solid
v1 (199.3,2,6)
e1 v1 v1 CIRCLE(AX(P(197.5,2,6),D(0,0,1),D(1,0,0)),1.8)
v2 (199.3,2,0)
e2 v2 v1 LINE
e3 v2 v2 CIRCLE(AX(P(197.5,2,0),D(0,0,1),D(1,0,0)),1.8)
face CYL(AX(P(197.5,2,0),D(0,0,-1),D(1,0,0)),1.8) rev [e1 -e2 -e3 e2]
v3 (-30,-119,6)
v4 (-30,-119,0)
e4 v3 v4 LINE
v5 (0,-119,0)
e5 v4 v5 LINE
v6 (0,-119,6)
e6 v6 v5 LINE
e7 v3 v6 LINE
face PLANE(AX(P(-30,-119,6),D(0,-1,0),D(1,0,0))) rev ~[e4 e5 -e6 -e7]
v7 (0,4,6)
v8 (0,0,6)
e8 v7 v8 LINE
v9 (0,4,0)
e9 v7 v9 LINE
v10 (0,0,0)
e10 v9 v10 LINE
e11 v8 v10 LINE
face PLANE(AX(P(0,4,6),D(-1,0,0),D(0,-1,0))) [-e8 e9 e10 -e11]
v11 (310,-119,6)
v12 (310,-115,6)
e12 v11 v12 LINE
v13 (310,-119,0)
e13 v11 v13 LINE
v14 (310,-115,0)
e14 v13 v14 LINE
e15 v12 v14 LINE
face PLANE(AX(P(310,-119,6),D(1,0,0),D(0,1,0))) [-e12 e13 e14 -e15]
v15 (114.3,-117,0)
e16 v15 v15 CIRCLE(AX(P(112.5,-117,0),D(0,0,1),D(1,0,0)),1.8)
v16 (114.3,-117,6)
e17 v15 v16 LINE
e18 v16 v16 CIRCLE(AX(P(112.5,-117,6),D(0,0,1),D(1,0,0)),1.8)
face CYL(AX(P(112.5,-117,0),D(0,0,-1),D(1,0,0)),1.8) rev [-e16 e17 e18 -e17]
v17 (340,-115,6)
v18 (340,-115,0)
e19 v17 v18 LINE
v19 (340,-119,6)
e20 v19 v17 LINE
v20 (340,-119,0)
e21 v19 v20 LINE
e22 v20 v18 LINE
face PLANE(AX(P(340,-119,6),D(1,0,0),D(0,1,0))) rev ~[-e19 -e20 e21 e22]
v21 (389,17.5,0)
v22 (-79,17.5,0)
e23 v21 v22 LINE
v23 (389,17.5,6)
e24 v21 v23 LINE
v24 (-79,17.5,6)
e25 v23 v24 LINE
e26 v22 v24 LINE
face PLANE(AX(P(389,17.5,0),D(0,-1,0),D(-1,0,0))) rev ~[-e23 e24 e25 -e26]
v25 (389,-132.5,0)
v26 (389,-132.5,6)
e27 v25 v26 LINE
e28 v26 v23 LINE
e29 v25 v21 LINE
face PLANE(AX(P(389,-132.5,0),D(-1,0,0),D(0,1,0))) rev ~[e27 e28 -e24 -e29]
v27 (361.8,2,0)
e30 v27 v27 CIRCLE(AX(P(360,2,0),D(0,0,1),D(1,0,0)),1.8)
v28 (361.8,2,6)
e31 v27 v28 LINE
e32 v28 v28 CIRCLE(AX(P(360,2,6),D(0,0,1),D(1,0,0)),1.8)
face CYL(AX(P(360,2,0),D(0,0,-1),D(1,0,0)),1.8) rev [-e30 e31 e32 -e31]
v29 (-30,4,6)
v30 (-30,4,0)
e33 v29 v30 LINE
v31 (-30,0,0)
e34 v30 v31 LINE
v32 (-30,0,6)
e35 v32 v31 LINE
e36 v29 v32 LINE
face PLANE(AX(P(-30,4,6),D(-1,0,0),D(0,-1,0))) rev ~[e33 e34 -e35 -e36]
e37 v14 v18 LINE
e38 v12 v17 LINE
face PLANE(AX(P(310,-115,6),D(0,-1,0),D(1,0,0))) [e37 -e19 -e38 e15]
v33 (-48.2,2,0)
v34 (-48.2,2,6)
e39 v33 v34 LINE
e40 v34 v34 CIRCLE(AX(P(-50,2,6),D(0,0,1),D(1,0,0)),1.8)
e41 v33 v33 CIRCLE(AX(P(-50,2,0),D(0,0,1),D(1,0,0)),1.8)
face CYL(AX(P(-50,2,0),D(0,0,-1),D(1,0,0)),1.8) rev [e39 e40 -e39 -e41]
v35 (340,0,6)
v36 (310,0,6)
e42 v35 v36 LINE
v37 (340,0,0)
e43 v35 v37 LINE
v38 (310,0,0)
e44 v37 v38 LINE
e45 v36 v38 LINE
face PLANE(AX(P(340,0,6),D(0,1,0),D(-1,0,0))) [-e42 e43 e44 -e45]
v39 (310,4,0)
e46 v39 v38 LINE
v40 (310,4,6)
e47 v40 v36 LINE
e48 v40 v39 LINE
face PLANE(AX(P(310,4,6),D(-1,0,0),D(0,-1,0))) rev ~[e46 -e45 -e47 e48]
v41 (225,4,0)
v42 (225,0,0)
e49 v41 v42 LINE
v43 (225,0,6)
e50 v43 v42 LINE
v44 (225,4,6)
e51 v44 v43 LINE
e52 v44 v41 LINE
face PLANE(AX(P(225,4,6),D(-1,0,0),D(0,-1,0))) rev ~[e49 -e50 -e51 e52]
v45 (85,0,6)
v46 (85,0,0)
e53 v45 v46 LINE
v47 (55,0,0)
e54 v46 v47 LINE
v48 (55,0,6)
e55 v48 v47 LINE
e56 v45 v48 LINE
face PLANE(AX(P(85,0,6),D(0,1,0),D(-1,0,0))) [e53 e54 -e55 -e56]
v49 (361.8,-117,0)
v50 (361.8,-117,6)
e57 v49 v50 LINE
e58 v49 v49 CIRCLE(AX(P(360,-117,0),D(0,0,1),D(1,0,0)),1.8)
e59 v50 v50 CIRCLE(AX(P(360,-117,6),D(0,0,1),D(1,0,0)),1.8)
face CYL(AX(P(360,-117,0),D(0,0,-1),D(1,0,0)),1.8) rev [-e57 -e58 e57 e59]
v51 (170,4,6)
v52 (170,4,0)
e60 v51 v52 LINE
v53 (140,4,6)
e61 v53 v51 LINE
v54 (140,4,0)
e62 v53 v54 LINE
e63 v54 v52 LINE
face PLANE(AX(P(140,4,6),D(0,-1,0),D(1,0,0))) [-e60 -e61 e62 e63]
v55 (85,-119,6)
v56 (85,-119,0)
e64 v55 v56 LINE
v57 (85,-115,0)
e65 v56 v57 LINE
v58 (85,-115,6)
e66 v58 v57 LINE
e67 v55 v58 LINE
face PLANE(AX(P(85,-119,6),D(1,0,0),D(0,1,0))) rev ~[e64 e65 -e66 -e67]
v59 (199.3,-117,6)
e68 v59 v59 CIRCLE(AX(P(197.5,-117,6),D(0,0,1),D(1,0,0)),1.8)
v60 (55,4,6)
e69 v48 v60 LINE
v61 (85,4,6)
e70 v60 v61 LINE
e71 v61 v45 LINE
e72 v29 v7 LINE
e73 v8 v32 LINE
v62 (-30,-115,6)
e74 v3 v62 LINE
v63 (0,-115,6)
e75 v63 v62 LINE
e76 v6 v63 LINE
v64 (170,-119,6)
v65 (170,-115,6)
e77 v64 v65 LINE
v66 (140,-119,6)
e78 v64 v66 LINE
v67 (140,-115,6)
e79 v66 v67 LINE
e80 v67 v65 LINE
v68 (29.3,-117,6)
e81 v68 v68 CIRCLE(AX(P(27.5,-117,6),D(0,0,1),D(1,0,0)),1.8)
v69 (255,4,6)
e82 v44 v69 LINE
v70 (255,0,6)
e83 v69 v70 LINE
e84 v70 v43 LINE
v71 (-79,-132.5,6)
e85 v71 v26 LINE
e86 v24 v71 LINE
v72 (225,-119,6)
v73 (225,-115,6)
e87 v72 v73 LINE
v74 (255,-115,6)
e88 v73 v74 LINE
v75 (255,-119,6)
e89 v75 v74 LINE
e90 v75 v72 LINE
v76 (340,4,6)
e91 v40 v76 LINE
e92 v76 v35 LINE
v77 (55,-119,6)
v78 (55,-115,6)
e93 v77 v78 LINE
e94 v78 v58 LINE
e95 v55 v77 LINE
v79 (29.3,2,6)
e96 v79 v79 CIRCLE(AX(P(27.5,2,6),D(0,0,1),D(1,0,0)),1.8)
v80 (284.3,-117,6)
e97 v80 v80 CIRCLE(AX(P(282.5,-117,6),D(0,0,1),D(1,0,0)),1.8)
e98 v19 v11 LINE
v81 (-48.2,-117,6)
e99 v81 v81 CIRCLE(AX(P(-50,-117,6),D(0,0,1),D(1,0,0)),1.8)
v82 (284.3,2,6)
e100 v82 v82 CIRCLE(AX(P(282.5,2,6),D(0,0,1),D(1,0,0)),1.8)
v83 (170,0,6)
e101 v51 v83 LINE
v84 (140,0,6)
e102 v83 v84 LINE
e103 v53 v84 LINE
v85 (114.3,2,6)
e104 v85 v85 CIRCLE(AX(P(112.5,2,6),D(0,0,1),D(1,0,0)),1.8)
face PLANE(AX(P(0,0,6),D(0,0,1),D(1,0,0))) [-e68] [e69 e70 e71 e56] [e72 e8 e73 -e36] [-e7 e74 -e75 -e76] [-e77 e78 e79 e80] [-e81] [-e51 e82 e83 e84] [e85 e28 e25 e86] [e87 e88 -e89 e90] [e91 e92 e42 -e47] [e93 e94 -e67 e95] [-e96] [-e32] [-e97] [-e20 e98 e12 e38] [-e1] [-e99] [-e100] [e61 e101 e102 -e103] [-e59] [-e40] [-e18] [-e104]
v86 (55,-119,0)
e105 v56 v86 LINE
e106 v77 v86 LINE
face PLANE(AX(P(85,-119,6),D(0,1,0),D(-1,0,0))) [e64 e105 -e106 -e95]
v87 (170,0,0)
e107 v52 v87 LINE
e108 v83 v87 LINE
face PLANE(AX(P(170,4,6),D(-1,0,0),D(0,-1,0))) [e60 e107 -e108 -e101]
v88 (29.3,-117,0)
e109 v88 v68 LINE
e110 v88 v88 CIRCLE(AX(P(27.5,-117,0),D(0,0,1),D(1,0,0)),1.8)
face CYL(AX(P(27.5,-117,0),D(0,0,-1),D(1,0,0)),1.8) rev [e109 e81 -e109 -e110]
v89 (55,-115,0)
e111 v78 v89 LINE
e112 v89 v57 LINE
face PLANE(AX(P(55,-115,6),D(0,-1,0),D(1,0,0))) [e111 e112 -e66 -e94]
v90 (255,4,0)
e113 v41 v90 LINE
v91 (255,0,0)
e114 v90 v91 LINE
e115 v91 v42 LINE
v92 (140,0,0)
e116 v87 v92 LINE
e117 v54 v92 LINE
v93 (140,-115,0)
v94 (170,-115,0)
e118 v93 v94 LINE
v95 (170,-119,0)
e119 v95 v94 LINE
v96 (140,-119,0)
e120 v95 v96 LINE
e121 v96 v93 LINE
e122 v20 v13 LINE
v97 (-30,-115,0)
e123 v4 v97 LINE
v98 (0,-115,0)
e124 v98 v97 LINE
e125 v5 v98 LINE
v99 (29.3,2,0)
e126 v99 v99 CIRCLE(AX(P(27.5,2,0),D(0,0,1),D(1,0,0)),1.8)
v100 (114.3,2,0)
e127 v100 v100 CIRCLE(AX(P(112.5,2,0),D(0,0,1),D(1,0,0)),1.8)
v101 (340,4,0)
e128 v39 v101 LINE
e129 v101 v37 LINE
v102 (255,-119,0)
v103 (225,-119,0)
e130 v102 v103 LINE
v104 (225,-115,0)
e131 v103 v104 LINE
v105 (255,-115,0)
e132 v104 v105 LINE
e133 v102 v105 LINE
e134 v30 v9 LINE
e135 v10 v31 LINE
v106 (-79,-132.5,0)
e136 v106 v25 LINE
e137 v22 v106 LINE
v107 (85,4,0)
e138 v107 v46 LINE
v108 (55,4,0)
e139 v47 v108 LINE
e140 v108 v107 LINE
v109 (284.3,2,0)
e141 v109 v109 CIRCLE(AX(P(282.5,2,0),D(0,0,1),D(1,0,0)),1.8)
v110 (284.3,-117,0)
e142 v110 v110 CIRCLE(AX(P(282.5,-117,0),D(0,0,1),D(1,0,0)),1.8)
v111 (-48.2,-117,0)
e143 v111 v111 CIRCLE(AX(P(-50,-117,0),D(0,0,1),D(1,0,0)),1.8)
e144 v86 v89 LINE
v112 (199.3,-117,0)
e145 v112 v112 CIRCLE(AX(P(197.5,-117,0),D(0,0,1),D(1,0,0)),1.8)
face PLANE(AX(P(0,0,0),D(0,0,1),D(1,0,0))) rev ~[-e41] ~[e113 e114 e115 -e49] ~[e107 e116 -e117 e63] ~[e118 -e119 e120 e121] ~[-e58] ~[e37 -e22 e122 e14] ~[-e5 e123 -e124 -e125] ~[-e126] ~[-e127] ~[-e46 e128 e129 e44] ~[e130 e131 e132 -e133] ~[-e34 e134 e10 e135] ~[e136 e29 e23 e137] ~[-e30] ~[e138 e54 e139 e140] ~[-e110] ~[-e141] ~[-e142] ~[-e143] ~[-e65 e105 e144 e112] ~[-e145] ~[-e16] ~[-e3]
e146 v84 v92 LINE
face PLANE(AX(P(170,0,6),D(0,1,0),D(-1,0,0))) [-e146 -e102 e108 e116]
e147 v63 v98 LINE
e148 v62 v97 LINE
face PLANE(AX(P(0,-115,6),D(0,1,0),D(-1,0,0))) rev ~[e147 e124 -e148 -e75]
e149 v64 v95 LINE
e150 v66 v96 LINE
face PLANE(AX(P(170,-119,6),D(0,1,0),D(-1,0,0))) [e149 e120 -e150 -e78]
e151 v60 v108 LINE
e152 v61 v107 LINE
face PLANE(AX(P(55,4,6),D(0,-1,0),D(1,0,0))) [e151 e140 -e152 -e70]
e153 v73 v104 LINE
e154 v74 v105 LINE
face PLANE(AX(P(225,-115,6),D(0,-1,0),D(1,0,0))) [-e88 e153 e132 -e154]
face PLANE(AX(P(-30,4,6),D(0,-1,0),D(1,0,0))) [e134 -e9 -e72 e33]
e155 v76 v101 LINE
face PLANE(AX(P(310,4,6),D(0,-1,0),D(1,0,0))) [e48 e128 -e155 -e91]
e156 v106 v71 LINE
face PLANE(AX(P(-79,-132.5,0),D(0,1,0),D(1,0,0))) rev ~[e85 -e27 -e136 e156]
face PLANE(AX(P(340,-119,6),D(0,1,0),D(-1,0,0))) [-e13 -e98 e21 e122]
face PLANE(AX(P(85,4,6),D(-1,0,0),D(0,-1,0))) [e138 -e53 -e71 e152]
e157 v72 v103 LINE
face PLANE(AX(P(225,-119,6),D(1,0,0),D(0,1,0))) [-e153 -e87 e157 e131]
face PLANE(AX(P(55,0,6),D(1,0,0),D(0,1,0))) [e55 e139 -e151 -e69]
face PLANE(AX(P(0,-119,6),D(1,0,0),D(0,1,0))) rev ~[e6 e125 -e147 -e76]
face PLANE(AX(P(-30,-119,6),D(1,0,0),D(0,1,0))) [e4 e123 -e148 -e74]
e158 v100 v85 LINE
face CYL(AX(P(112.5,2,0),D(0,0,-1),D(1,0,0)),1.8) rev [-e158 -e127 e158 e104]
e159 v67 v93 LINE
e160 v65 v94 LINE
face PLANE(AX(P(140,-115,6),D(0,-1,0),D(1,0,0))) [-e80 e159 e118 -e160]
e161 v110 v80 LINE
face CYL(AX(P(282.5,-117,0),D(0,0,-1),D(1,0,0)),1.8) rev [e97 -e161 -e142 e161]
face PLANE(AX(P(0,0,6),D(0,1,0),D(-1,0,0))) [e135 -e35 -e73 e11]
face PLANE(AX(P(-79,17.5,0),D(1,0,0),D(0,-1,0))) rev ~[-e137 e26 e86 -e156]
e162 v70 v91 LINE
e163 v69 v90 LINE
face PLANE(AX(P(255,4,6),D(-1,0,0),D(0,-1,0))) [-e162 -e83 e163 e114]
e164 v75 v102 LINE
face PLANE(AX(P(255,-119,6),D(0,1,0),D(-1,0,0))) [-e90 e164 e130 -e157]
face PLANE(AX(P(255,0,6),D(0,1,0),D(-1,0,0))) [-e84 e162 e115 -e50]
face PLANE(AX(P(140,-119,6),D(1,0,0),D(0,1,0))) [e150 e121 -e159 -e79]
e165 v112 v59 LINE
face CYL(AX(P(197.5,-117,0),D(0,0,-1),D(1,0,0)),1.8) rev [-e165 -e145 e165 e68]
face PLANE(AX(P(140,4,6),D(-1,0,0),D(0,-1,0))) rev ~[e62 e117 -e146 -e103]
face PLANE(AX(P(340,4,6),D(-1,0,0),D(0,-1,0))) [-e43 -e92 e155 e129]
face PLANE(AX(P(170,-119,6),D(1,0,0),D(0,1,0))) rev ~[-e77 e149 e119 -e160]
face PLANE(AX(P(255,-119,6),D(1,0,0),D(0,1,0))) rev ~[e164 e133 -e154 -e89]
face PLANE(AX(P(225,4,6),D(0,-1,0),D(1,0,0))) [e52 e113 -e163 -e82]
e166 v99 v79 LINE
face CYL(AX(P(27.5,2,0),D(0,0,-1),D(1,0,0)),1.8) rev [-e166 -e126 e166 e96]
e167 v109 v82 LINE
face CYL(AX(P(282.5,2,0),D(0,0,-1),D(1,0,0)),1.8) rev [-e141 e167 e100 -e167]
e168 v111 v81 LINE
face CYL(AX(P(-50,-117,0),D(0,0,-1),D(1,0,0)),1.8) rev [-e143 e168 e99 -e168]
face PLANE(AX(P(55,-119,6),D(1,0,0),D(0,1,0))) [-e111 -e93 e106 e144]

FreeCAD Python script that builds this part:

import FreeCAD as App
import Part
import Sketcher


def add_polygon(sketch, points):
    """Adds a closed chain of lines whose ends are joined by coincident constraints."""
    first, n = sketch.GeometryCount, len(points)
    for a, b in zip(points, points[1:] + points[:1]):
        sketch.addGeometry(Part.LineSegment(App.Vector(*a, 0), App.Vector(*b, 0)), False)
    for i in range(n):
        sketch.addConstraint(Sketcher.Constraint("Coincident", first + i, 2, first + (i + 1) % n, 1))

doc = App.newDocument("Part")
params = doc.addObject("Spreadsheet::Sheet", "Params")
for row, (alias, value) in enumerate([
    ("sketch1_diameter", "3.6 mm"),
    ("sketch1_width", "468 mm"),
    ("sketch1_height", "150 mm"),
    ("pad1_length", "6 mm"),
    ("sketch2_width", "30 mm"),
    ("sketch2_height", "4 mm"),
    ("pocket1_length", "6 mm"),
], start=1):
    params.set(f"A{row}", alias)
    params.set(f"B{row}", "=" + value)
    params.setAlias(f"B{row}", alias)

body = doc.addObject("PartDesign::Body", "Body")

sketch1 = doc.addObject("Sketcher::SketchObject", "Sketch")
body.addObject(sketch1)
sketch1.AttachmentSupport = (doc.XY_Plane, [""])
sketch1.MapMode = "FlatFace"
add_polygon(sketch1, [(389, -132.5), (389, 17.5), (-79, 17.5), (-79, -132.5)])
sketch1.addGeometry(Part.Circle(App.Vector(-50, -117, 0), App.Vector(0, 0, 1), 1.8), False)
sketch1.addGeometry(Part.Circle(App.Vector(27.5, -117, 0), App.Vector(0, 0, 1), 1.8), False)
sketch1.addGeometry(Part.Circle(App.Vector(112.5, -117, 0), App.Vector(0, 0, 1), 1.8), False)
sketch1.addGeometry(Part.Circle(App.Vector(197.5, -117, 0), App.Vector(0, 0, 1), 1.8), False)
sketch1.addGeometry(Part.Circle(App.Vector(282.5, -117, 0), App.Vector(0, 0, 1), 1.8), False)
sketch1.addGeometry(Part.Circle(App.Vector(360, -117, 0), App.Vector(0, 0, 1), 1.8), False)
sketch1.addGeometry(Part.Circle(App.Vector(-50, 2, 0), App.Vector(0, 0, 1), 1.8), False)
sketch1.addGeometry(Part.Circle(App.Vector(27.5, 2, 0), App.Vector(0, 0, 1), 1.8), False)
sketch1.addGeometry(Part.Circle(App.Vector(112.5, 2, 0), App.Vector(0, 0, 1), 1.8), False)
sketch1.addGeometry(Part.Circle(App.Vector(197.5, 2, 0), App.Vector(0, 0, 1), 1.8), False)
sketch1.addGeometry(Part.Circle(App.Vector(282.5, 2, 0), App.Vector(0, 0, 1), 1.8), False)
sketch1.addGeometry(Part.Circle(App.Vector(360, 2, 0), App.Vector(0, 0, 1), 1.8), False)
sketch1.addConstraint([
    Sketcher.Constraint("Vertical", 0),
    Sketcher.Constraint("Horizontal", 1),
    Sketcher.Constraint("Vertical", 2),
    Sketcher.Constraint("Horizontal", 3),
    Sketcher.Constraint("Equal", 4, 5),
    Sketcher.Constraint("Equal", 5, 6),
    Sketcher.Constraint("Equal", 6, 7),
    Sketcher.Constraint("Equal", 7, 8),
    Sketcher.Constraint("Equal", 8, 9),
    Sketcher.Constraint("Equal", 9, 10),
    Sketcher.Constraint("Equal", 10, 11),
    Sketcher.Constraint("Equal", 11, 12),
    Sketcher.Constraint("Equal", 12, 13),
    Sketcher.Constraint("Equal", 13, 14),
    Sketcher.Constraint("Equal", 14, 15),
    Sketcher.Constraint("Horizontal", 4, 3, 5, 3),
    Sketcher.Constraint("Horizontal", 5, 3, 6, 3),
    Sketcher.Constraint("Horizontal", 6, 3, 7, 3),
    Sketcher.Constraint("Horizontal", 7, 3, 8, 3),
    Sketcher.Constraint("Horizontal", 8, 3, 9, 3),
    Sketcher.Constraint("Horizontal", 10, 3, 11, 3),
    Sketcher.Constraint("Horizontal", 11, 3, 12, 3),
    Sketcher.Constraint("Horizontal", 12, 3, 13, 3),
    Sketcher.Constraint("Horizontal", 13, 3, 14, 3),
    Sketcher.Constraint("Horizontal", 14, 3, 15, 3),
    Sketcher.Constraint("Vertical", 4, 3, 10, 3),
    Sketcher.Constraint("Vertical", 5, 3, 11, 3),
    Sketcher.Constraint("Vertical", 6, 3, 12, 3),
    Sketcher.Constraint("Vertical", 7, 3, 13, 3),
    Sketcher.Constraint("Vertical", 8, 3, 14, 3),
    Sketcher.Constraint("Vertical", 9, 3, 15, 3),
    Sketcher.Constraint("Diameter", 4, 3.6),
    Sketcher.Constraint("DistanceX", 1, 2, 1, 1, 468.0),
    Sketcher.Constraint("DistanceY", 0, 1, 0, 2, 150.0),
    Sketcher.Constraint("DistanceX", 4, 3, -1, 1, 50.0),
    Sketcher.Constraint("DistanceY", 4, 3, -1, 1, 117.0),
    Sketcher.Constraint("DistanceX", -1, 1, 9, 3, 360.0),
    Sketcher.Constraint("DistanceY", -1, 1, 10, 3, 2.0),
    Sketcher.Constraint("DistanceX", -1, 1, 0, 2, 389.0),
    Sketcher.Constraint("DistanceX", 5, 3, 6, 3, 85.0),
    Sketcher.Constraint("DistanceX", 6, 3, 7, 3, 85.0),
    Sketcher.Constraint("DistanceX", 7, 3, 8, 3, 85.0),
    Sketcher.Constraint("DistanceX", -1, 1, 5, 3, 27.5),
    Sketcher.Constraint("DistanceY", -1, 1, 0, 2, 17.5),
])
sketch1.setExpression("Constraints[35]", "Params.sketch1_diameter")
sketch1.setExpression("Constraints[36]", "Params.sketch1_width")
sketch1.setExpression("Constraints[37]", "Params.sketch1_height")
pad1 = doc.addObject("PartDesign::Pad", "Pad")
body.addObject(pad1)
pad1.Profile = sketch1
pad1.setExpression("Length", "Params.pad1_length")

sketch2 = doc.addObject("Sketcher::SketchObject", "Sketch001")
body.addObject(sketch2)
sketch2.AttachmentSupport = (doc.XY_Plane, [""])
sketch2.MapMode = "FlatFace"
sketch2.AttachmentOffset = App.Placement(App.Vector(0, 0, 6), App.Rotation())
add_polygon(sketch2, [(55, 4), (55, 0), (85, 0), (85, 4)])
add_polygon(sketch2, [(0, 0), (0, 4), (-30, 4), (-30, 0)])
add_polygon(sketch2, [(-30, -115), (-30, -119), (0, -119), (0, -115)])
add_polygon(sketch2, [(55, -115), (55, -119), (85, -119), (85, -115)])
add_polygon(sketch2, [(140, -115), (140, -119), (170, -119), (170, -115)])
add_polygon(sketch2, [(225, -115), (225, -119), (255, -119), (255, -115)])
add_polygon(sketch2, [(170, 0), (170, 4), (140, 4), (140, 0)])
add_polygon(sketch2, [(255, 4), (225, 4), (225, 0), (255, 0)])
add_polygon(sketch2, [(340, 4), (310, 4), (310, 0), (340, 0)])
add_polygon(sketch2, [(310, -115), (310, -119), (340, -119), (340, -115)])
sketch2.addConstraint([
    Sketcher.Constraint("Vertical", 0),
    Sketcher.Constraint("Horizontal", 1),
    Sketcher.Constraint("Vertical", 2),
    Sketcher.Constraint("Horizontal", 3),
    Sketcher.Constraint("Vertical", 4),
    Sketcher.Constraint("Horizontal", 5),
    Sketcher.Constraint("Vertical", 6),
    Sketcher.Constraint("Horizontal", 7),
    Sketcher.Constraint("Vertical", 8),
    Sketcher.Constraint("Horizontal", 9),
    Sketcher.Constraint("Vertical", 10),
    Sketcher.Constraint("Horizontal", 11),
    Sketcher.Constraint("Vertical", 12),
    Sketcher.Constraint("Horizontal", 13),
    Sketcher.Constraint("Vertical", 14),
    Sketcher.Constraint("Horizontal", 15),
    Sketcher.Constraint("Vertical", 16),
    Sketcher.Constraint("Horizontal", 17),
    Sketcher.Constraint("Vertical", 18),
    Sketcher.Constraint("Horizontal", 19),
    Sketcher.Constraint("Vertical", 20),
    Sketcher.Constraint("Horizontal", 21),
    Sketcher.Constraint("Vertical", 22),
    Sketcher.Constraint("Horizontal", 23),
    Sketcher.Constraint("Vertical", 24),
    Sketcher.Constraint("Horizontal", 25),
    Sketcher.Constraint("Vertical", 26),
    Sketcher.Constraint("Horizontal", 27),
    Sketcher.Constraint("Horizontal", 28),
    Sketcher.Constraint("Vertical", 29),
    Sketcher.Constraint("Horizontal", 30),
    Sketcher.Constraint("Vertical", 31),
    Sketcher.Constraint("Horizontal", 32),
    Sketcher.Constraint("Vertical", 33),
    Sketcher.Constraint("Horizontal", 34),
    Sketcher.Constraint("Vertical", 35),
    Sketcher.Constraint("Vertical", 36),
    Sketcher.Constraint("Horizontal", 37),
    Sketcher.Constraint("Vertical", 38),
    Sketcher.Constraint("Horizontal", 39),
    Sketcher.Constraint("Coincident", 7, 2, -1, 1),
    Sketcher.Constraint("PointOnObject", 0, 2, -1),
    Sketcher.Constraint("PointOnObject", 9, 2, -2),
    Sketcher.Constraint("PointOnObject", 26, 2, -1),
    Sketcher.Constraint("PointOnObject", 29, 2, -1),
    Sketcher.Constraint("PointOnObject", 33, 2, -1),
    Sketcher.Constraint("Horizontal", 3, 2, 4, 2),
    Sketcher.Constraint("Horizontal", 9, 2, 12, 2),
    Sketcher.Constraint("Horizontal", 11, 2, 14, 2),
    Sketcher.Constraint("Horizontal", 13, 2, 16, 2),
    Sketcher.Constraint("Horizontal", 15, 2, 18, 2),
    Sketcher.Constraint("Horizontal", 17, 2, 20, 2),
    Sketcher.Constraint("Horizontal", 19, 2, 22, 2),
    Sketcher.Constraint("Horizontal", 5, 2, 24, 2),
    Sketcher.Constraint("Horizontal", 25, 2, 28, 2),
    Sketcher.Constraint("Horizontal", 31, 2, 32, 2),
    Sketcher.Constraint("Horizontal", 21, 2, 36, 2),
    Sketcher.Constraint("Horizontal", 23, 2, 38, 2),
    Sketcher.Constraint("Vertical", 6, 2, 8, 2),
    Sketcher.Constraint("Vertical", 3, 2, 12, 2),
    Sketcher.Constraint("Vertical", 2, 2, 13, 2),
    Sketcher.Constraint("Vertical", 18, 2, 24, 2),
    Sketcher.Constraint("Vertical", 19, 2, 25, 2),
    Sketcher.Constraint("Vertical", 23, 2, 28, 2),
    Sketcher.Constraint("Vertical", 22, 2, 30, 2),
    Sketcher.Constraint("Vertical", 33, 2, 36, 2),
    Sketcher.Constraint("Vertical", 35, 2, 37, 2),
    Sketcher.Constraint("Equal", 3, 5),
    Sketcher.Constraint("Equal", 15, 17),
    Sketcher.Constraint("Equal", 19, 21),
    Sketcher.Constraint("Equal", 30, 32),
    Sketcher.Constraint("Equal", 6, 8),
    Sketcher.Constraint("DistanceX", 1, 1, 1, 2, 30.0),
    Sketcher.Constraint("DistanceY", 0, 2, 0, 1, 4.0),
    Sketcher.Constraint("DistanceX", -1, 1, 0, 2, 55.0),
    Sketcher.Constraint("DistanceY", 8, 2, -1, 1, 119.0),
    Sketcher.Constraint("DistanceX", -1, 1, 16, 2, 140.0),
    Sketcher.Constraint("DistanceX", -1, 1, 20, 2, 225.0),
    Sketcher.Constraint("DistanceX", -1, 1, 32, 2, 310.0),
])
sketch2.setExpression("Constraints[112]", "Params.sketch2_width")
sketch2.setExpression("Constraints[113]", "Params.sketch2_height")
pocket1 = doc.addObject("PartDesign::Pocket", "Pocket")
body.addObject(pocket1)
pocket1.Profile = sketch2
pocket1.setExpression("Length", "Params.pocket1_length")

doc.recompute()
